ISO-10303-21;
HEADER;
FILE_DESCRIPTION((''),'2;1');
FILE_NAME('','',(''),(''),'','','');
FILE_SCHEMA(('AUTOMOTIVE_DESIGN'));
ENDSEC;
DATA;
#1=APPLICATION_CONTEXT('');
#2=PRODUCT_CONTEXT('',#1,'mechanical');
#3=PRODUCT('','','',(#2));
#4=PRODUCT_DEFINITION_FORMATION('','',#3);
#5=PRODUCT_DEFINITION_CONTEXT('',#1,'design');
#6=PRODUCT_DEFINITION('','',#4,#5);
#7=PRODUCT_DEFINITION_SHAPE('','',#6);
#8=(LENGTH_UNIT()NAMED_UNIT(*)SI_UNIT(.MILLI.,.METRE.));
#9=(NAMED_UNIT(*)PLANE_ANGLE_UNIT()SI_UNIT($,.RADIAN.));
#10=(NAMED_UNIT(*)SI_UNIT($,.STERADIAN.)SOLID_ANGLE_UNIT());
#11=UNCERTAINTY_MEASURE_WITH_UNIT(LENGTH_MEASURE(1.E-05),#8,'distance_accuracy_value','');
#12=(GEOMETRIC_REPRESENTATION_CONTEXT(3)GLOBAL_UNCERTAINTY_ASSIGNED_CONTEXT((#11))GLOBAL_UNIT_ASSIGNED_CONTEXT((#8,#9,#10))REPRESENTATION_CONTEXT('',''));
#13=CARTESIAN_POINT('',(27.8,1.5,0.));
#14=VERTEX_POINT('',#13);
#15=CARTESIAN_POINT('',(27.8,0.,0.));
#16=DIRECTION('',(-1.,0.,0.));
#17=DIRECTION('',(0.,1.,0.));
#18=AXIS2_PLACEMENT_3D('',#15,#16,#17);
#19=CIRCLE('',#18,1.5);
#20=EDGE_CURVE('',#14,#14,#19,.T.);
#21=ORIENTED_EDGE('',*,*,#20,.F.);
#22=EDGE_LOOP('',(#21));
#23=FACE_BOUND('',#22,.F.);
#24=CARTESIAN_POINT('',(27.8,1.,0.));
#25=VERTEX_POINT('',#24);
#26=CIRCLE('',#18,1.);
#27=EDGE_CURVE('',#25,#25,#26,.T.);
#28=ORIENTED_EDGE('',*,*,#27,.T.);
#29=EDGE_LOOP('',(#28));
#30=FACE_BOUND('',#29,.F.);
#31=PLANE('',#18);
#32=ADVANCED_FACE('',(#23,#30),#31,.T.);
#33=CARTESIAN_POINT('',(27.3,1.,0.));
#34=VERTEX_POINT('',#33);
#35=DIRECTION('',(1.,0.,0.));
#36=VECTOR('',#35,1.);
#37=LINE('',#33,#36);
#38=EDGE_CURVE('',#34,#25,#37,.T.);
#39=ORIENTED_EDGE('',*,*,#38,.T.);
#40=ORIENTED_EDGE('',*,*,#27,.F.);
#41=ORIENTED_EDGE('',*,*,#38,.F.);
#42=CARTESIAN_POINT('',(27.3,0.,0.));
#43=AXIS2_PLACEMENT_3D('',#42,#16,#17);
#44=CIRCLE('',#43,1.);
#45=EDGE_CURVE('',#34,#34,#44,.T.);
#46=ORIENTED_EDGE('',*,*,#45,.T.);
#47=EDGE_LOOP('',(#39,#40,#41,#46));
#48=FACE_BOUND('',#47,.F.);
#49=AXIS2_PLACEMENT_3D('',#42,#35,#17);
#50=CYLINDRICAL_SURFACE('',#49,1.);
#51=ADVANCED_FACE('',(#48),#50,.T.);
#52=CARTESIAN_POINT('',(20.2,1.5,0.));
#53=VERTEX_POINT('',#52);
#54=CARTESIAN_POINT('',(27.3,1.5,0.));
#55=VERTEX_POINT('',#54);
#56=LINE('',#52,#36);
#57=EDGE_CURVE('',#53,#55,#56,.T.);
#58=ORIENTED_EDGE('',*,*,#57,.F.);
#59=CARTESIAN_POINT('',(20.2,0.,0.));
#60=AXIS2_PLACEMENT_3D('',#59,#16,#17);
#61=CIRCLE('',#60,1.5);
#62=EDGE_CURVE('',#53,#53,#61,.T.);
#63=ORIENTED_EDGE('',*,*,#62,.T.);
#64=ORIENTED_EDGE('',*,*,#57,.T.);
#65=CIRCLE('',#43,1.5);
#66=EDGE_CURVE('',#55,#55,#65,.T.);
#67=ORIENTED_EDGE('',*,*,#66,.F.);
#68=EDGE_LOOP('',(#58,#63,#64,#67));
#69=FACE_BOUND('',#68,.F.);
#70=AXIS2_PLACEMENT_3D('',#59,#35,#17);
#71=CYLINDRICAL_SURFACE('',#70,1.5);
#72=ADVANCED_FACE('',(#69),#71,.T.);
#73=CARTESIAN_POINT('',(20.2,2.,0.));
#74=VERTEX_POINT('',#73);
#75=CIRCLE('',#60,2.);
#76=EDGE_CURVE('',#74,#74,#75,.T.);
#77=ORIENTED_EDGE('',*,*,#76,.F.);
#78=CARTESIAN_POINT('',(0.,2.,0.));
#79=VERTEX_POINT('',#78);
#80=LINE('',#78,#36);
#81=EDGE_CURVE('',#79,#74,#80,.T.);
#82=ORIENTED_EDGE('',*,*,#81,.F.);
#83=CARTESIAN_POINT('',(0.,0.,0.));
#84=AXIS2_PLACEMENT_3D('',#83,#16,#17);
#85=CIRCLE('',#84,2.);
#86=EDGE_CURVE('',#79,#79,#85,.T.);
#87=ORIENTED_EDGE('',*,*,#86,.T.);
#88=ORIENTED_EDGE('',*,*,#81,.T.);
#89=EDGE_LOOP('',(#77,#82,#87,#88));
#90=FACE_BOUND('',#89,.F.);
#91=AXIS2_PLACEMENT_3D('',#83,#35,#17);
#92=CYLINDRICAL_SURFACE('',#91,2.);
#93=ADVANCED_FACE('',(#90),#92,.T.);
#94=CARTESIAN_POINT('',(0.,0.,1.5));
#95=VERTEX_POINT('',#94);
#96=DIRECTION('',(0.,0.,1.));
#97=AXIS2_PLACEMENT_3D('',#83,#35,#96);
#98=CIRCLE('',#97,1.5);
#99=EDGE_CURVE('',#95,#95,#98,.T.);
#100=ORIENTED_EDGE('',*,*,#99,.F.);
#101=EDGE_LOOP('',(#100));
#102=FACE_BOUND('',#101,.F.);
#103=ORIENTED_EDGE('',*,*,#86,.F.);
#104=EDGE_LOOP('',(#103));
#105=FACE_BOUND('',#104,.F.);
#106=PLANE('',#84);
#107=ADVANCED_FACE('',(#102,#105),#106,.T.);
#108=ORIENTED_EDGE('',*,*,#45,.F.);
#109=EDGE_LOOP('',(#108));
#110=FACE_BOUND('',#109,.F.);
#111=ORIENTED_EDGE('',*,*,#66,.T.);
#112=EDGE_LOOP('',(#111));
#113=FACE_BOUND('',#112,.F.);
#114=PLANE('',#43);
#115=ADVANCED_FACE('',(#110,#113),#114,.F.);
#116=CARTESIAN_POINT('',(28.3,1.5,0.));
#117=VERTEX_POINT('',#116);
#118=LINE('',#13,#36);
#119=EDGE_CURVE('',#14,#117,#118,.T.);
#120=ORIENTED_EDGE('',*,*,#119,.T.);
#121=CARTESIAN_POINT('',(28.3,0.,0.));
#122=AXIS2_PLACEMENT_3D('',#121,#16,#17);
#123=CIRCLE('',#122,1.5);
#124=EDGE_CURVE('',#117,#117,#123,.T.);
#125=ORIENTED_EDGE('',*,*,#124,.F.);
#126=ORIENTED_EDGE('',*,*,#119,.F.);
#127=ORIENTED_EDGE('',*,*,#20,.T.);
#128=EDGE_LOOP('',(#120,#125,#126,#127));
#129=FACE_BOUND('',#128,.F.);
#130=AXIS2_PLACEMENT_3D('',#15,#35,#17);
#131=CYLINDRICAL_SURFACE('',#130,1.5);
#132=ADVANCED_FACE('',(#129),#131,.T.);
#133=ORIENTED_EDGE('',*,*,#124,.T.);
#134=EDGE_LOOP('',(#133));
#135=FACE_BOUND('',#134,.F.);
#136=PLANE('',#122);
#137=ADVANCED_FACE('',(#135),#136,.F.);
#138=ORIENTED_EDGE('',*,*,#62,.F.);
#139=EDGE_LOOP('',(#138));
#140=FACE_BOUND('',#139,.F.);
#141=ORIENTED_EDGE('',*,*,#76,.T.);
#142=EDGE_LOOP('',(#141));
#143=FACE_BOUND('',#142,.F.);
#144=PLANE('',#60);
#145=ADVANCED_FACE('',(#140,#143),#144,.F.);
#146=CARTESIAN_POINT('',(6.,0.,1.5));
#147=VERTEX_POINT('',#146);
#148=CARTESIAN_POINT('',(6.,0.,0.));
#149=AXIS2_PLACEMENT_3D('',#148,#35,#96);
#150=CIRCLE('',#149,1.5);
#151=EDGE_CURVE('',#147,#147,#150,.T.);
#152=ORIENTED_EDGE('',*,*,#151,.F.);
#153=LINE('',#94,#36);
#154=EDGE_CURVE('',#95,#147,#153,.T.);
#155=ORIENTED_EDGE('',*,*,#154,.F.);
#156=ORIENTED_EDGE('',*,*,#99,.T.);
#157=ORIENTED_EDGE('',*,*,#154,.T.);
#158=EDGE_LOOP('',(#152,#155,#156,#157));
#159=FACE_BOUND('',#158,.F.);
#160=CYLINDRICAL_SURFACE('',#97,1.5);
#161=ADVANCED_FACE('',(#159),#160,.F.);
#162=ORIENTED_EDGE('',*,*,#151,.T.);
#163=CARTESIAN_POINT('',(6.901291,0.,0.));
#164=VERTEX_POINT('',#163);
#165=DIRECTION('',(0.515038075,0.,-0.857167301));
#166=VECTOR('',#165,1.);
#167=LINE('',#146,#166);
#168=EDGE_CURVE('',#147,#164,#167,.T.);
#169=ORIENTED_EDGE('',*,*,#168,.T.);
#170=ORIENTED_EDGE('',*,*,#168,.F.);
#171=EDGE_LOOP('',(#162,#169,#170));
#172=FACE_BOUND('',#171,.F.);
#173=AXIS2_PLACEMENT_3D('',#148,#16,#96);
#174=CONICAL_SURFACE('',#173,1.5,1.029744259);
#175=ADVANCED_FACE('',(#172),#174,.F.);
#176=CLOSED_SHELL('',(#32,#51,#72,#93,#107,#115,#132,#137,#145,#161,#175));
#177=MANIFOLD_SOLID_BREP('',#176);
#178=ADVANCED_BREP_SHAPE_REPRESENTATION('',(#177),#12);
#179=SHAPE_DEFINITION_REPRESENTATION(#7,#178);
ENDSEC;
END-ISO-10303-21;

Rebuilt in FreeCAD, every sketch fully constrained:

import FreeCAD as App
import Part
import Sketcher

V = App.Vector
Q = App.Units.Quantity

doc = App.newDocument("Part")
body = doc.addObject("PartDesign::Body", "Body")

sketch1 = body.newObject("Sketcher::SketchObject", "Sketch")
sketch1.AttachmentSupport = (doc.getObject("XY_Plane"), [""])
sketch1.MapMode = "FlatFace"
sketch1.addGeometry(Part.LineSegment(V(0, 2, 0), V(0, 0, 0)), False)
sketch1.addGeometry(Part.LineSegment(V(0, 0, 0), V(28.3, 0, 0)), False)
sketch1.addGeometry(Part.LineSegment(V(28.3, 0, 0), V(28.3, 1.5, 0)), False)
sketch1.addGeometry(Part.LineSegment(V(28.3, 1.5, 0), V(27.8, 1.5, 0)), False)
sketch1.addGeometry(Part.LineSegment(V(27.8, 1.5, 0), V(27.8, 1, 0)), False)
sketch1.addGeometry(Part.LineSegment(V(27.8, 1, 0), V(27.3, 1, 0)), False)
sketch1.addGeometry(Part.LineSegment(V(27.3, 1, 0), V(27.3, 1.5, 0)), False)
sketch1.addGeometry(Part.LineSegment(V(27.3, 1.5, 0), V(20.2, 1.5, 0)), False)
sketch1.addGeometry(Part.LineSegment(V(20.2, 1.5, 0), V(20.2, 2, 0)), False)
sketch1.addGeometry(Part.LineSegment(V(20.2, 2, 0), V(0, 2, 0)), False)
sketch1.addConstraint(Sketcher.Constraint("Coincident", 0, 2, 1, 1))
sketch1.addConstraint(Sketcher.Constraint("Coincident", 1, 2, 2, 1))
sketch1.addConstraint(Sketcher.Constraint("Coincident", 2, 2, 3, 1))
sketch1.addConstraint(Sketcher.Constraint("Coincident", 3, 2, 4, 1))
sketch1.addConstraint(Sketcher.Constraint("Coincident", 4, 2, 5, 1))
sketch1.addConstraint(Sketcher.Constraint("Coincident", 5, 2, 6, 1))
sketch1.addConstraint(Sketcher.Constraint("Coincident", 6, 2, 7, 1))
sketch1.addConstraint(Sketcher.Constraint("Coincident", 7, 2, 8, 1))
sketch1.addConstraint(Sketcher.Constraint("Coincident", 8, 2, 9, 1))
sketch1.addConstraint(Sketcher.Constraint("Coincident", 9, 2, 0, 1))
sketch1.addConstraint(Sketcher.Constraint("Vertical", 0))
sketch1.addConstraint(Sketcher.Constraint("Horizontal", 1))
sketch1.addConstraint(Sketcher.Constraint("Vertical", 2))
sketch1.addConstraint(Sketcher.Constraint("Horizontal", 3))
sketch1.addConstraint(Sketcher.Constraint("Vertical", 4))
sketch1.addConstraint(Sketcher.Constraint("Horizontal", 5))
sketch1.addConstraint(Sketcher.Constraint("Vertical", 6))
sketch1.addConstraint(Sketcher.Constraint("Horizontal", 7))
sketch1.addConstraint(Sketcher.Constraint("Vertical", 8))
sketch1.addConstraint(Sketcher.Constraint("Horizontal", 9))
sketch1.addConstraint(Sketcher.Constraint("Coincident", 0, 2, -1, 1))
sketch1.addConstraint(Sketcher.Constraint("Horizontal", 3, 2, 6, 2))
sketch1.addConstraint(Sketcher.Constraint("Equal", 3, 5))
sketch1.addConstraint(Sketcher.Constraint("Equal", 5, 4))
sketch1.addConstraint(Sketcher.Constraint("Equal", 6, 8))
sketch1.addConstraint(Sketcher.Constraint("DistanceX", 3, 2, 3, 1, Q("0.5 mm")))
sketch1.addConstraint(Sketcher.Constraint("DistanceX", 7, 2, 7, 1, Q("7.1 mm")))
sketch1.addConstraint(Sketcher.Constraint("DistanceX", 9, 2, 9, 1, Q("20.2 mm")))
sketch1.addConstraint(Sketcher.Constraint("DistanceY", 0, 2, 0, 1, Q("2 mm")))
revolution = body.newObject("PartDesign::Revolution", "Revolution")
revolution.Profile = sketch1
revolution.ReferenceAxis = (sketch1, ["H_Axis"])
revolution.Angle = 360

sketch2 = body.newObject("Sketcher::SketchObject", "Sketch001")
sketch2.AttachmentSupport = (doc.getObject("YZ_Plane"), [""])
sketch2.MapMode = "FlatFace"
sketch2.addGeometry(Part.Circle(V(0, 0, 0), V(0, 0, 1), 1.5), False)
sketch2.addConstraint(Sketcher.Constraint("Coincident", 0, 3, -1, 1))
sketch2.addConstraint(Sketcher.Constraint("Diameter", 0, Q("3 mm")))
doc.recompute()
hole = body.newObject("PartDesign::Hole", "Hole")
hole.Profile = sketch2
hole.ThreadType = "None"
hole.Diameter = 3
hole.DepthType = "Dimension"
hole.Depth = 6
hole.DrillPoint = "Angled"
hole.DrillPointAngle = 118
hole.Reversed = True

doc.recompute()
